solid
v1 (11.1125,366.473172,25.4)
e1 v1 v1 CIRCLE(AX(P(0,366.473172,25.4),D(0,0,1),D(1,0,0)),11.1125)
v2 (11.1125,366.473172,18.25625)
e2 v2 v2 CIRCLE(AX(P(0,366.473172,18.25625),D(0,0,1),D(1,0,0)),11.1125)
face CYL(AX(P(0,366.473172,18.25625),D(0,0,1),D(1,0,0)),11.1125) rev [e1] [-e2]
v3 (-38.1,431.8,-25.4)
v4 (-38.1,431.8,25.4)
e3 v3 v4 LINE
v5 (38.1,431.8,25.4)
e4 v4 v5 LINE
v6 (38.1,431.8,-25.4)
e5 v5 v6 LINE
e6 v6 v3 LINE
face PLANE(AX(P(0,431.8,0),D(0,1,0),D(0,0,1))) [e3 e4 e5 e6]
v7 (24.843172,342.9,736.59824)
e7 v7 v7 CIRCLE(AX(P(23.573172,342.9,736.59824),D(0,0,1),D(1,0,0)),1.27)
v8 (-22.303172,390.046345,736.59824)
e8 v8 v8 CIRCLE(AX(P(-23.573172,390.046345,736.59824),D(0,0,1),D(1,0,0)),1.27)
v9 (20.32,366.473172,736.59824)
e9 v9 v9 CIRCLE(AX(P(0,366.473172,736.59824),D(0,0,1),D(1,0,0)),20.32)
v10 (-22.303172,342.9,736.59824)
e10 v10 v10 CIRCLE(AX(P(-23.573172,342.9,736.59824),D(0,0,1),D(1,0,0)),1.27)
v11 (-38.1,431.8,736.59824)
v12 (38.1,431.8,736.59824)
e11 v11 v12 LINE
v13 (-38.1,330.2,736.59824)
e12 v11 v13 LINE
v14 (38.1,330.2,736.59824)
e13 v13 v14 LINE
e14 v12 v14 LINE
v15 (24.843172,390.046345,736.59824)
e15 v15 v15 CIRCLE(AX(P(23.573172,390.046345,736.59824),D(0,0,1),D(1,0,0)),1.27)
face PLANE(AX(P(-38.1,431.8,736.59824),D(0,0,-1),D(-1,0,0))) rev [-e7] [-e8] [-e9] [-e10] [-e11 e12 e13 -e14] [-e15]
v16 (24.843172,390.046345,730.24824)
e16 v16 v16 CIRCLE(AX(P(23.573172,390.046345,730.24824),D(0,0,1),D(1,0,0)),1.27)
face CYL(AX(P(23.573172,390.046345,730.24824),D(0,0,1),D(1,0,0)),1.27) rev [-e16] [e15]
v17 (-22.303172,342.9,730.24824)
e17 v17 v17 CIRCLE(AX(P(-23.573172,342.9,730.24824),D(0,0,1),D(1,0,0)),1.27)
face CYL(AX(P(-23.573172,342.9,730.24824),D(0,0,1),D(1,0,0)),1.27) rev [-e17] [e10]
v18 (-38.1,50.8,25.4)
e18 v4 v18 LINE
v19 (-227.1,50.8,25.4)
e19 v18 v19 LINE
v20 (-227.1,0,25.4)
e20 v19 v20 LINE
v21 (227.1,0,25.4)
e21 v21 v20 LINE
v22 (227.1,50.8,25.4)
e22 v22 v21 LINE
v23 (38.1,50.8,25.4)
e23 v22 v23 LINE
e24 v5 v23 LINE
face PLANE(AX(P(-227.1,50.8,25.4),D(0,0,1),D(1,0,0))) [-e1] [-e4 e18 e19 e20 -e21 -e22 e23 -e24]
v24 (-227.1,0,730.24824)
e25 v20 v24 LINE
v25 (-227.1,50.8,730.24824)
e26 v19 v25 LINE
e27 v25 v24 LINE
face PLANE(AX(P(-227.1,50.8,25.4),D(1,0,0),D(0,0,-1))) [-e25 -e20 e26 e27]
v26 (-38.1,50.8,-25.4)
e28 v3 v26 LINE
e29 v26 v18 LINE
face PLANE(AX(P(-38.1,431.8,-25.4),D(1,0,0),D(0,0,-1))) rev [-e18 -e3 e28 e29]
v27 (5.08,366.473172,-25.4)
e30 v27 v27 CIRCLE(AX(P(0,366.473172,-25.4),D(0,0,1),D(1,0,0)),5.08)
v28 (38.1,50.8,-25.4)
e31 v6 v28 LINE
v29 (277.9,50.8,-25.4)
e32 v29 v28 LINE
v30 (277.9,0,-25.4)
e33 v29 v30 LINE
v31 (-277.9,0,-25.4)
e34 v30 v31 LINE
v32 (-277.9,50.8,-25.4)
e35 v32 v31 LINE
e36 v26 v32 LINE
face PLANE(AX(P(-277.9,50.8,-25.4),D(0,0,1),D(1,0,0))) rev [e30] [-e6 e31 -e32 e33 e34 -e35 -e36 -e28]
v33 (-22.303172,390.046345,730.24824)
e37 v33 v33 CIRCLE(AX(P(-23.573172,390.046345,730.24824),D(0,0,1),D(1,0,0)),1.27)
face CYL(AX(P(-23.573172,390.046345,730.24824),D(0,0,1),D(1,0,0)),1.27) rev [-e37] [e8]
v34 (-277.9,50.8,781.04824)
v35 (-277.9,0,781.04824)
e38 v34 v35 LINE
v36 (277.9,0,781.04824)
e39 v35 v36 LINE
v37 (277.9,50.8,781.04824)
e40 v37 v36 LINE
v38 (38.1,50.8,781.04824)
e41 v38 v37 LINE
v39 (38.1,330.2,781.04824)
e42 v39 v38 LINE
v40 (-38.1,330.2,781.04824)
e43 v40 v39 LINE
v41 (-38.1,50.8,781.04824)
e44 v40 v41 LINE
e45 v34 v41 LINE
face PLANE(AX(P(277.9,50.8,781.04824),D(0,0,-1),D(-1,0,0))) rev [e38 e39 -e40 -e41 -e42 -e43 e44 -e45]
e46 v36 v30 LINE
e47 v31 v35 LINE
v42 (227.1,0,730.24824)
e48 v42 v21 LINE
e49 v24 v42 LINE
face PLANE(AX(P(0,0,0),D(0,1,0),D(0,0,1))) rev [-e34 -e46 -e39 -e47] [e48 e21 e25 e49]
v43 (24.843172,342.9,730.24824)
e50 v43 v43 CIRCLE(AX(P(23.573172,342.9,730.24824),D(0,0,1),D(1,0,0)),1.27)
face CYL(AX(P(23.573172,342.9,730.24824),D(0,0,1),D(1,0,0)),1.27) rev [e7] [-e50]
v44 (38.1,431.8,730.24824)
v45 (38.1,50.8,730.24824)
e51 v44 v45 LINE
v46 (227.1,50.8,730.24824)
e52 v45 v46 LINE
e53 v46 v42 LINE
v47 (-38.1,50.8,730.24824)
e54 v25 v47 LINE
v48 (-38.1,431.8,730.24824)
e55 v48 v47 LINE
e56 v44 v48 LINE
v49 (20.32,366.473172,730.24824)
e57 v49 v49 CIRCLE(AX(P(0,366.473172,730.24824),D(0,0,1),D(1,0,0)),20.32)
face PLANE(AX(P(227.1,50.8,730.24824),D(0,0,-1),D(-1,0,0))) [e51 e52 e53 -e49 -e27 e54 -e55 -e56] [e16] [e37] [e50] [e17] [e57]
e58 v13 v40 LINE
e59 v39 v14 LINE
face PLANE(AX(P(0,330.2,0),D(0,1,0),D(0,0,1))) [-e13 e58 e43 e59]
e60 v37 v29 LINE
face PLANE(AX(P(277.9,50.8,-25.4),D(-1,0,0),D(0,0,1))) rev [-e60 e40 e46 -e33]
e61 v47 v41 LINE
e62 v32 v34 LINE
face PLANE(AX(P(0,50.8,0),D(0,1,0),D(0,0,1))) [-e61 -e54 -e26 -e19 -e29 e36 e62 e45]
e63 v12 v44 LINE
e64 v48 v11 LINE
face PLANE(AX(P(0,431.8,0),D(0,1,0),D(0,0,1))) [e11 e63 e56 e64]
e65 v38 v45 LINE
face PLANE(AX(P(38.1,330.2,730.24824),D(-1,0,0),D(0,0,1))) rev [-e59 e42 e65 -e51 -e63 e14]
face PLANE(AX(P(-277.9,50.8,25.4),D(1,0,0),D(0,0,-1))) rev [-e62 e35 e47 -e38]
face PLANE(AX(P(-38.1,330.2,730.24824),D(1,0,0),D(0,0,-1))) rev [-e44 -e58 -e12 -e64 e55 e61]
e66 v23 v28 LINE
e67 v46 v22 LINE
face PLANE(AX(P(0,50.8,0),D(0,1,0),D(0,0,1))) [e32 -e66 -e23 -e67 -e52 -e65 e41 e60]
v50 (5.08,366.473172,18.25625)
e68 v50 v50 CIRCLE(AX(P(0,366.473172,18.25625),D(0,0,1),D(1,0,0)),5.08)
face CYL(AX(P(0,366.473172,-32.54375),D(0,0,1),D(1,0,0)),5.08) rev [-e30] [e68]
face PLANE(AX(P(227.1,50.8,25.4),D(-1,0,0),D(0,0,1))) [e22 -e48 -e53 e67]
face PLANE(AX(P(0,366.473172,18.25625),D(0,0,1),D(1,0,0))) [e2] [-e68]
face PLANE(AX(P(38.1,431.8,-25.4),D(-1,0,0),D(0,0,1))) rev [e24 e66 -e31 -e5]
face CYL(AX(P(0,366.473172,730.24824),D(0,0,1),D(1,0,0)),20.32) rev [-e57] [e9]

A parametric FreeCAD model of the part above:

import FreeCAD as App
import Part
import Sketcher

V = App.Vector
Q = App.Units.Quantity

doc = App.newDocument("Part")
body = doc.addObject("PartDesign::Body", "Body")

# Sketch on XZ plane
sketch1 = body.newObject("Sketcher::SketchObject", "Sketch")
sketch1.AttachmentSupport = (doc.getObject("XZ_Plane"), [""])
sketch1.MapMode = "FlatFace"
sketch1.addGeometry([
    Part.LineSegment(V(278, -25, 0), V(-278, -25, 0)),  # 0
    Part.LineSegment(V(-278, -25, 0), V(-278, 781, 0)),  # 1
    Part.LineSegment(V(-278, 781, 0), V(278, 781, 0)),  # 2
    Part.LineSegment(V(278, 781, 0), V(278, -25, 0)),  # 3
    Part.LineSegment(V(-227, 730, 0), V(-227, 25, 0)),  # 4
    Part.LineSegment(V(-227, 25, 0), V(227, 25, 0)),  # 5
    Part.LineSegment(V(227, 25, 0), V(227, 730, 0)),  # 6
    Part.LineSegment(V(227, 730, 0), V(-227, 730, 0)),  # 7
], False)
sketch1.addConstraint([
    Sketcher.Constraint("Coincident", 0, 2, 1, 1),
    Sketcher.Constraint("Coincident", 1, 2, 2, 1),
    Sketcher.Constraint("Coincident", 2, 2, 3, 1),
    Sketcher.Constraint("Coincident", 3, 2, 0, 1),
    Sketcher.Constraint("Coincident", 4, 2, 5, 1),
    Sketcher.Constraint("Coincident", 5, 2, 6, 1),
    Sketcher.Constraint("Coincident", 6, 2, 7, 1),
    Sketcher.Constraint("Coincident", 7, 2, 4, 1),
    Sketcher.Constraint("Horizontal", 0),
    Sketcher.Constraint("Vertical", 1),
    Sketcher.Constraint("Horizontal", 2),
    Sketcher.Constraint("Vertical", 3),
    Sketcher.Constraint("Vertical", 4),
    Sketcher.Constraint("Horizontal", 5),
    Sketcher.Constraint("Vertical", 6),
    Sketcher.Constraint("Horizontal", 7),
    Sketcher.Constraint("DistanceY", 0, 2, -1, 1, Q("1 in")),
    Sketcher.Constraint("DistanceY", -1, 1, 4, 2, Q("1 in")),
    Sketcher.Constraint("DistanceX", 0, 2, 4, 2, Q("2 in")),
    Sketcher.Constraint("DistanceX", 5, 2, 3, 2, Q("2 in")),
    Sketcher.Constraint("DistanceY", 6, 2, 2, 2, Q("2 in")),
    Sketcher.Constraint("DistanceX", 0, 2, 0, 1, 555.8),
    Sketcher.Constraint("DistanceY", 1, 1, 1, 2, 806.44824),
    Sketcher.Constraint("DistanceX", 0, 2, -1, 1, 277.9),
])
pad1 = body.newObject("PartDesign::Pad", "Pad")
pad1.Profile = sketch1
pad1.Length = Q("2 in")
pad1.Reversed = True

# Sketch on XZ plane
sketch2 = body.newObject("Sketcher::SketchObject", "Sketch001")
sketch2.AttachmentSupport = (doc.getObject("XZ_Plane"), [""])
sketch2.MapMode = "FlatFace"
sketch2.AttachmentOffset = App.Placement(V(0, 0, -2 * 25.4), App.Rotation())
sketch2.addGeometry([
    Part.LineSegment(V(-38, 730, 0), V(-38, 781, 0)),
    Part.LineSegment(V(-38, 781, 0), V(38, 781, 0)),
    Part.LineSegment(V(38, 781, 0), V(38, 730, 0)),
    Part.LineSegment(V(38, 730, 0), V(-38, 730, 0)),
], False)
sketch2.addConstraint([
    Sketcher.Constraint("Coincident", 0, 2, 1, 1),
    Sketcher.Constraint("Coincident", 1, 2, 2, 1),
    Sketcher.Constraint("Coincident", 2, 2, 3, 1),
    Sketcher.Constraint("Coincident", 3, 2, 0, 1),
    Sketcher.Constraint("Vertical", 0),
    Sketcher.Constraint("Horizontal", 1),
    Sketcher.Constraint("Vertical", 2),
    Sketcher.Constraint("Horizontal", 3),
    Sketcher.Constraint("DistanceX", 1, 1, 1, 2, Q("3 in")),
    Sketcher.Constraint("DistanceY", 0, 1, 0, 2, Q("2 in")),
    Sketcher.Constraint("DistanceX", 0, 2, -1, 1, Q("1.5 in")),
    Sketcher.Constraint("DistanceY", -1, 1, 0, 2, 781.04824),
])
pad2 = body.newObject("PartDesign::Pad", "Pad001")
pad2.Profile = sketch2
pad2.Length = Q("11 in")
pad2.Reversed = True

# Sketch on XZ plane
sketch3 = body.newObject("Sketcher::SketchObject", "Sketch002")
sketch3.AttachmentSupport = (doc.getObject("XZ_Plane"), [""])
sketch3.MapMode = "FlatFace"
sketch3.AttachmentOffset = App.Placement(V(0, 0, -2 * 25.4), App.Rotation())
sketch3.addGeometry([
    Part.LineSegment(V(-38, -25, 0), V(-38, 25, 0)),
    Part.LineSegment(V(-38, 25, 0), V(38, 25, 0)),
    Part.LineSegment(V(38, 25, 0), V(38, -25, 0)),
    Part.LineSegment(V(38, -25, 0), V(-38, -25, 0)),
], False)
sketch3.addConstraint([
    Sketcher.Constraint("Coincident", 0, 2, 1, 1),
    Sketcher.Constraint("Coincident", 1, 2, 2, 1),
    Sketcher.Constraint("Coincident", 2, 2, 3, 1),
    Sketcher.Constraint("Coincident", 3, 2, 0, 1),
    Sketcher.Constraint("Vertical", 0),
    Sketcher.Constraint("Horizontal", 1),
    Sketcher.Constraint("Vertical", 2),
    Sketcher.Constraint("Horizontal", 3),
    Sketcher.Constraint("Symmetric", 0, 2, 2, 2, -1, 1),
    Sketcher.Constraint("DistanceX", 1, 1, 1, 2, Q("3 in")),
    Sketcher.Constraint("DistanceY", 0, 1, 0, 2, Q("2 in")),
])
pad3 = body.newObject("PartDesign::Pad", "Pad002")
pad3.Profile = sketch3
pad3.Length = Q("15 in")
pad3.Reversed = True

# Sketch on XZ plane
sketch4 = body.newObject("Sketcher::SketchObject", "Sketch003")
sketch4.AttachmentSupport = (doc.getObject("XZ_Plane"), [""])
sketch4.MapMode = "FlatFace"
sketch4.AttachmentOffset = App.Placement(V(0, 0, -13 * 25.4), App.Rotation())
sketch4.addGeometry([
    Part.LineSegment(V(-38, 730, 0), V(-38, 737, 0)),
    Part.LineSegment(V(-38, 737, 0), V(38, 737, 0)),
    Part.LineSegment(V(38, 737, 0), V(38, 730, 0)),
    Part.LineSegment(V(38, 730, 0), V(-38, 730, 0)),
], False)
sketch4.addConstraint([
    Sketcher.Constraint("Coincident", 0, 2, 1, 1),
    Sketcher.Constraint("Coincident", 1, 2, 2, 1),
    Sketcher.Constraint("Coincident", 2, 2, 3, 1),
    Sketcher.Constraint("Coincident", 3, 2, 0, 1),
    Sketcher.Constraint("Vertical", 0),
    Sketcher.Constraint("Horizontal", 1),
    Sketcher.Constraint("Vertical", 2),
    Sketcher.Constraint("Horizontal", 3),
    Sketcher.Constraint("DistanceX", 1, 1, 1, 2, Q("3 in")),
    Sketcher.Constraint("DistanceY", 0, 1, 0, 2, Q("0.25 in")),
    Sketcher.Constraint("DistanceX", 0, 2, -1, 1, Q("1.5 in")),
    Sketcher.Constraint("DistanceY", -1, 1, 0, 2, 736.59824),
])
pad4 = body.newObject("PartDesign::Pad", "Pad003")
pad4.Profile = sketch4
pad4.Length = Q("4 in")
pad4.Reversed = True

# Sketch on XY plane
sketch5 = body.newObject("Sketcher::SketchObject", "Sketch004")
sketch5.AttachmentSupport = (doc.getObject("XY_Plane"), [""])
sketch5.MapMode = "FlatFace"
sketch5.AttachmentOffset = App.Placement(V(0, 0, 736.59824), App.Rotation())
sketch5.addGeometry([
    Part.Circle(V(-23.6, 390, 0), V(0, 0, 1), 1.3),  # 0
    Part.Circle(V(-23.6, 342.9, 0), V(0, 0, 1), 1.3),  # 1
    Part.Circle(V(23.6, 390, 0), V(0, 0, 1), 1.3),  # 2
    Part.Circle(V(23.6, 342.9, 0), V(0, 0, 1), 1.3),  # 3
    Part.Circle(V(0, 366.5, 0), V(0, 0, 1), 20.3),  # 4
], False)
sketch5.addConstraint([
    Sketcher.Constraint("Equal", 0, 1),
    Sketcher.Constraint("Equal", 1, 2),
    Sketcher.Constraint("Equal", 2, 3),
    Sketcher.Constraint("Symmetric", 0, 3, 2, 3, -2),
    Sketcher.Constraint("Symmetric", 1, 3, 3, 3, -2),
    Sketcher.Constraint("PointOnObject", 4, 3, -2),
    Sketcher.Constraint("Vertical", 0, 3, 1, 3),
    Sketcher.Constraint("Diameter", 0, Q("0.1 in")),
    Sketcher.Constraint("Diameter", 4, Q("1.6 in")),
    Sketcher.Constraint("DistanceY", -1, 1, 1, 3, Q("13.5 in")),
    Sketcher.Constraint("DistanceX", 0, 3, -1, 1, 23.573172),
    Sketcher.Constraint("DistanceY", -1, 1, 0, 3, 390.046345),
    Sketcher.Constraint("DistanceY", -1, 1, 4, 3, 366.473172),
])
pocket1 = body.newObject("PartDesign::Pocket", "Pocket")
pocket1.Profile = sketch5
pocket1.Length = Q("0.25 in")

# Sketch on XY plane
sketch6 = body.newObject("Sketcher::SketchObject", "Sketch005")
sketch6.AttachmentSupport = (doc.getObject("XY_Plane"), [""])
sketch6.MapMode = "FlatFace"
sketch6.AttachmentOffset = App.Placement(V(0, 0, 1 * 25.4), App.Rotation())
sketch6.addGeometry(Part.Circle(V(0, 366, 0), V(0, 0, 1), 11), False)
sketch6.addConstraint([
    Sketcher.Constraint("PointOnObject", 0, 3, -2),
    Sketcher.Constraint("Diameter", 0, Q("0.875 in")),
    Sketcher.Constraint("DistanceY", -1, 1, 0, 3, 366.473172),
])
pocket2 = body.newObject("PartDesign::Pocket", "Pocket001")
pocket2.Profile = sketch6
pocket2.Length = Q("0.28125 in")

# Sketch on XY plane
sketch7 = body.newObject("Sketcher::SketchObject", "Sketch006")
sketch7.AttachmentSupport = (doc.getObject("XY_Plane"), [""])
sketch7.MapMode = "FlatFace"
sketch7.AttachmentOffset = App.Placement(V(0, 0, 0.71875 * 25.4), App.Rotation())
sketch7.addGeometry(Part.Circle(V(0, 366, 0), V(0, 0, 1), 5), False)
sketch7.addConstraint([
    Sketcher.Constraint("PointOnObject", 0, 3, -2),
    Sketcher.Constraint("Diameter", 0, Q("0.4 in")),
    Sketcher.Constraint("DistanceY", -1, 1, 0, 3, 366.473172),
])
pocket3 = body.newObject("PartDesign::Pocket", "Pocket002")
pocket3.Profile = sketch7
pocket3.Length = Q("2 in")

doc.recompute()
